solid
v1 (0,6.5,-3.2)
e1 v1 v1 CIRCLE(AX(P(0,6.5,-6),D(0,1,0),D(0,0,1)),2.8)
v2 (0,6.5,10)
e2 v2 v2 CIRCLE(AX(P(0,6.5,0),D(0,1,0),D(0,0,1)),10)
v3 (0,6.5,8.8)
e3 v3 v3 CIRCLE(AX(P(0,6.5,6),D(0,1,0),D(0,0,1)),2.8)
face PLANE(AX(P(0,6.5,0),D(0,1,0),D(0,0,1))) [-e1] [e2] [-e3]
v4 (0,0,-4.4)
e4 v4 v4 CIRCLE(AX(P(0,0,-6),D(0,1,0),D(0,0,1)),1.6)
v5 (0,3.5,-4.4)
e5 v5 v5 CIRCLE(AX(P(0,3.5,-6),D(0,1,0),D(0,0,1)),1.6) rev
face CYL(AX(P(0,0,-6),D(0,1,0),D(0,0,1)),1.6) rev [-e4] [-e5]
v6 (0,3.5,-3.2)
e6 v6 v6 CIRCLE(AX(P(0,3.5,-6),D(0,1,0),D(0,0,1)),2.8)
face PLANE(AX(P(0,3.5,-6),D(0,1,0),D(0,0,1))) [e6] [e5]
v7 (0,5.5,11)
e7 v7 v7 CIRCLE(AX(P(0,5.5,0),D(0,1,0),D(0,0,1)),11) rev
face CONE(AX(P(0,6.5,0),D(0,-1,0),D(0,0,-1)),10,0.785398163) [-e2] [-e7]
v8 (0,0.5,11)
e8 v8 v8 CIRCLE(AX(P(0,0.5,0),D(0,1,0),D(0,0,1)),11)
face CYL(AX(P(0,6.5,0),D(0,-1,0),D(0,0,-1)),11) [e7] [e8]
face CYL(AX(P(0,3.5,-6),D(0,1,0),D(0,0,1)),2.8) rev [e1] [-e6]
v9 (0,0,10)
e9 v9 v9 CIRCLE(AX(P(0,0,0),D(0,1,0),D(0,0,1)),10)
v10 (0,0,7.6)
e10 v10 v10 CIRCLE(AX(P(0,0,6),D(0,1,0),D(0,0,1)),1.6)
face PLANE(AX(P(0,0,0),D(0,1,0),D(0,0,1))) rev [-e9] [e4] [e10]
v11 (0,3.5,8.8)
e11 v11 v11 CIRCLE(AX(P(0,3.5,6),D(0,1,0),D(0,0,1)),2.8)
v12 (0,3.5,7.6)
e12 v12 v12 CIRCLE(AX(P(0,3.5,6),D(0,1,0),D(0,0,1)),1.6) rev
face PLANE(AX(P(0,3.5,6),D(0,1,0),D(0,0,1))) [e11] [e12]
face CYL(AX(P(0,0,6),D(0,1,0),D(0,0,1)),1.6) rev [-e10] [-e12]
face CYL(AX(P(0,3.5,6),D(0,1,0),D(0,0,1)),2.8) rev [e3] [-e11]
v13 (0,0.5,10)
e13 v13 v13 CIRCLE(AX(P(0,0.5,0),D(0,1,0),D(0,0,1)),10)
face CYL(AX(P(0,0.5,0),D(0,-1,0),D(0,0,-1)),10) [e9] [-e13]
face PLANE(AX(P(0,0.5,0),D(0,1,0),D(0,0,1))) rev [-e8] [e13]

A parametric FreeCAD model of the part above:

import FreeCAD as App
import Part
import Sketcher

V = App.Vector
Q = App.Units.Quantity


def edges_at(feature, points):
    """Names of the edges that pass closest to the given points."""
    edges = feature.Shape.Edges
    near = lambda p: min(range(len(edges)), key=lambda i: edges[i].distToShape(Part.Vertex(*p))[0])
    return sorted({f"Edge{near(p) + 1}" for p in points})

doc = App.newDocument("Part")
body = doc.addObject("PartDesign::Body", "Body")

# Sketch on XZ plane
sketch1 = body.newObject("Sketcher::SketchObject", "Sketch")
sketch1.AttachmentSupport = (doc.getObject("XZ_Plane"), [""])
sketch1.MapMode = "FlatFace"
sketch1.addGeometry(Part.Circle(V(0, 0, 0), V(0, 0, 1), 10), False)
sketch1.addConstraint(Sketcher.Constraint("Coincident", 0, 3, -1, 1))
sketch1.addConstraint(Sketcher.Constraint("Diameter", 0, Q("20 mm")))
pad1 = body.newObject("PartDesign::Pad", "Pad")
pad1.Profile = sketch1
pad1.Length = 0.5
pad1.Reversed = True

# Sketch on XZ plane
sketch2 = body.newObject("Sketcher::SketchObject", "Sketch001")
sketch2.AttachmentSupport = (doc.getObject("XZ_Plane"), [""])
sketch2.MapMode = "FlatFace"
sketch2.AttachmentOffset = App.Placement(V(0, 0, -0.5), App.Rotation())
sketch2.addGeometry(Part.Circle(V(0, 0, 0), V(0, 0, 1), 11), False)
sketch2.addConstraint(Sketcher.Constraint("Coincident", 0, 3, -1, 1))
sketch2.addConstraint(Sketcher.Constraint("Diameter", 0, Q("22 mm")))
pad2 = body.newObject("PartDesign::Pad", "Pad001")
pad2.Profile = sketch2
pad2.Length = 6
pad2.Reversed = True
doc.recompute()

chamfer = body.newObject("PartDesign::Chamfer", "Chamfer")
chamfer.Base = (pad2, edges_at(pad2, [(0, 6.5, -11)]))
chamfer.Size = 1

# Sketch on XZ plane
sketch3 = body.newObject("Sketcher::SketchObject", "Sketch002")
sketch3.AttachmentSupport = (doc.getObject("XZ_Plane"), [""])
sketch3.MapMode = "FlatFace"
sketch3.AttachmentOffset = App.Placement(V(0, 0, -6.5), App.Rotation())
sketch3.addGeometry(Part.Circle(V(0, -6, 0), V(0, 0, 1), 1.6), False)
sketch3.addGeometry(Part.Circle(V(0, 6, 0), V(0, 0, 1), 1.6), False)
sketch3.addConstraint(Sketcher.Constraint("Equal", 0, 1))
sketch3.addConstraint(Sketcher.Constraint("Symmetric", 0, 3, 1, 3, -1, 1))
sketch3.addConstraint(Sketcher.Constraint("PointOnObject", 0, 3, -2))
sketch3.addConstraint(Sketcher.Constraint("Diameter", 0, Q("3.2 mm")))
sketch3.addConstraint(Sketcher.Constraint("DistanceY", 0, 3, -1, 1, Q("6 mm")))
pocket1 = body.newObject("PartDesign::Pocket", "Pocket")
pocket1.Profile = sketch3
pocket1.Type = "ThroughAll"
pocket1.Reversed = True

# Sketch on XZ plane
sketch4 = body.newObject("Sketcher::SketchObject", "Sketch003")
sketch4.AttachmentSupport = (doc.getObject("XZ_Plane"), [""])
sketch4.MapMode = "FlatFace"
sketch4.AttachmentOffset = App.Placement(V(0, 0, -6.5), App.Rotation())
sketch4.addGeometry(Part.Circle(V(0, -6, 0), V(0, 0, 1), 2.8), False)
sketch4.addGeometry(Part.Circle(V(0, 6, 0), V(0, 0, 1), 2.8), False)
sketch4.addConstraint(Sketcher.Constraint("Equal", 0, 1))
sketch4.addConstraint(Sketcher.Constraint("Symmetric", 0, 3, 1, 3, -1, 1))
sketch4.addConstraint(Sketcher.Constraint("PointOnObject", 0, 3, -2))
sketch4.addConstraint(Sketcher.Constraint("Diameter", 0, Q("5.6 mm")))
sketch4.addConstraint(Sketcher.Constraint("DistanceY", 0, 3, -1, 1, Q("6 mm")))
pocket2 = body.newObject("PartDesign::Pocket", "Pocket001")
pocket2.Profile = sketch4
pocket2.Length = 3
pocket2.Reversed = True

doc.recompute()
